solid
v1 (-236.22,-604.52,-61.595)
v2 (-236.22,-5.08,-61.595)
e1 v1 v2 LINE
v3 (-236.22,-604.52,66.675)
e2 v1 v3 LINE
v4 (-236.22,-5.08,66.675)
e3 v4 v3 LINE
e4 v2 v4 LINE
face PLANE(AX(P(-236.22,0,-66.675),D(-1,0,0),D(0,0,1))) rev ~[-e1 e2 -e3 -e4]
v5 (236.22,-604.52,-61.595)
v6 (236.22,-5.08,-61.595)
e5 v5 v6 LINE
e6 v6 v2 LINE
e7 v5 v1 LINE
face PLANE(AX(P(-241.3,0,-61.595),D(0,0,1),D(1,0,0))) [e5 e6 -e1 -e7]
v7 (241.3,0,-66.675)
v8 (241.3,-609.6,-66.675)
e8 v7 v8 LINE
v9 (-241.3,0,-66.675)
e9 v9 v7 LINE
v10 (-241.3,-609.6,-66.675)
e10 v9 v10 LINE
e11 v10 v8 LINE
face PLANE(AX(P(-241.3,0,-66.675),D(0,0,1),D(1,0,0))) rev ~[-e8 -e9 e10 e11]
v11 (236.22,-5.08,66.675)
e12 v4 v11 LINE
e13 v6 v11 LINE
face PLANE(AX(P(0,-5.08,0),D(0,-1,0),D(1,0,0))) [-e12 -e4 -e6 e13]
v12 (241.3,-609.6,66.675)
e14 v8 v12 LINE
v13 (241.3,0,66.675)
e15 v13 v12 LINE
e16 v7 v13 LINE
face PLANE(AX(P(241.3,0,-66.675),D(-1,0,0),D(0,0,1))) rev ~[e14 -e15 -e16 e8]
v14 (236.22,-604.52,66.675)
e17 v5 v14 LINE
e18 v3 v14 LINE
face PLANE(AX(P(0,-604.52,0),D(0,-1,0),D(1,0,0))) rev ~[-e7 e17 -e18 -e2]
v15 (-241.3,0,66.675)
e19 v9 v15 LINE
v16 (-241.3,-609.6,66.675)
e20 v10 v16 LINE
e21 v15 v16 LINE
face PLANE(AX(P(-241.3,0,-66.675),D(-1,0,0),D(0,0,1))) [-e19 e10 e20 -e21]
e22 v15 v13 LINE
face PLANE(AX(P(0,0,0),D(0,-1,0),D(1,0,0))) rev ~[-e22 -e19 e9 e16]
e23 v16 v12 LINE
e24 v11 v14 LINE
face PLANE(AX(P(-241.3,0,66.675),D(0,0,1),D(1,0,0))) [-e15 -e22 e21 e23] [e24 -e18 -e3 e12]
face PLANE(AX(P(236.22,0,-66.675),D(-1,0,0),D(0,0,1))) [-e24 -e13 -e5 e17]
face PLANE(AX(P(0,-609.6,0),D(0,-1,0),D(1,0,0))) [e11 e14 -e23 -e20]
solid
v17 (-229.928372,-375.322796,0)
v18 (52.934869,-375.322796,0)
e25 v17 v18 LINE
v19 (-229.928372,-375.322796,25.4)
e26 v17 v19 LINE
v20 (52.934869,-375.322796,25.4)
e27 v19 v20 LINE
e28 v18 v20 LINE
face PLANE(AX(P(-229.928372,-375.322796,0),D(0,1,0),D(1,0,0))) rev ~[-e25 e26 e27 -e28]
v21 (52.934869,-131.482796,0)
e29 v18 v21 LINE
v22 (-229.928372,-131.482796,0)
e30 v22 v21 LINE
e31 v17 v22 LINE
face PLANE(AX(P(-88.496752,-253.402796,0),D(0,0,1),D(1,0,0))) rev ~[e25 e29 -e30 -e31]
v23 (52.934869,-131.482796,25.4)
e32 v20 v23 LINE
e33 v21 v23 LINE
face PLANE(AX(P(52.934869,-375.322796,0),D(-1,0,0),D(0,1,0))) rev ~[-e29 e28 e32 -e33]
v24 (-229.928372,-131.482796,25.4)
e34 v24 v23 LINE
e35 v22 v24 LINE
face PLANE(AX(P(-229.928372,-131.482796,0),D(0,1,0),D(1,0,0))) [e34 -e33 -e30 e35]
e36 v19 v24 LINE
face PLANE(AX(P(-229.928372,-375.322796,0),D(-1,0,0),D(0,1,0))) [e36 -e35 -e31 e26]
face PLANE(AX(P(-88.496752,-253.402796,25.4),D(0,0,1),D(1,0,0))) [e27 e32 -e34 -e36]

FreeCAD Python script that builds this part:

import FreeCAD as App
import Part
import Sketcher
Q = App.Units.Quantity


def faces_at(feature, points):
    """Names of the faces that lie closest to the given points."""
    faces = feature.Shape.Faces
    near = lambda p: min(range(len(faces)), key=lambda i: faces[i].distToShape(Part.Vertex(*p))[0])
    return sorted({f"Face{near(p) + 1}" for p in points})

doc = App.newDocument("Part")
body = doc.addObject("PartDesign::Body", "Body")

sketch1 = doc.addObject("Sketcher::SketchObject", "Sketch")
body.addObject(sketch1)
sketch1.AttachmentSupport = (doc.XZ_Plane, [""])
sketch1.MapMode = "FlatFace"
sketch1.addGeometry(Part.LineSegment(App.Vector(-241, 67, 0), App.Vector(-241, -67, 0)), False)
sketch1.addGeometry(Part.LineSegment(App.Vector(-241, -67, 0), App.Vector(241, -67, 0)), False)
sketch1.addGeometry(Part.LineSegment(App.Vector(241, -67, 0), App.Vector(241, 67, 0)), False)
sketch1.addGeometry(Part.LineSegment(App.Vector(241, 67, 0), App.Vector(-241, 67, 0)), False)
sketch1.addConstraint(Sketcher.Constraint("Coincident", 0, 2, 1, 1))
sketch1.addConstraint(Sketcher.Constraint("Coincident", 1, 2, 2, 1))
sketch1.addConstraint(Sketcher.Constraint("Coincident", 2, 2, 3, 1))
sketch1.addConstraint(Sketcher.Constraint("Coincident", 3, 2, 0, 1))
sketch1.addConstraint(Sketcher.Constraint("Vertical", 0))
sketch1.addConstraint(Sketcher.Constraint("Horizontal", 1))
sketch1.addConstraint(Sketcher.Constraint("Vertical", 2))
sketch1.addConstraint(Sketcher.Constraint("Horizontal", 3))
sketch1.addConstraint(Sketcher.Constraint("Symmetric", 0, 2, 2, 2, -1, 1))
sketch1.addConstraint(Sketcher.Constraint("DistanceX", 1, 1, 1, 2, Q("19 in")))
sketch1.addConstraint(Sketcher.Constraint("DistanceY", 0, 2, 0, 1, Q("5.25 in")))
pad1 = doc.addObject("PartDesign::Pad", "Pad")
body.addObject(pad1)
pad1.Profile = sketch1
pad1.Length = Q("24 in")
doc.recompute()

thickness = doc.addObject("PartDesign::Thickness", "Thickness")
body.addObject(thickness)
thickness.Base = (pad1, faces_at(pad1, [(0, -304.8, 66.675)]))
thickness.Value = Q("0.2 in")
thickness.Reversed = True
thickness.Join = "Arc"
body2 = doc.addObject("PartDesign::Body", "Body001")

sketch2 = doc.addObject("Sketcher::SketchObject", "Sketch001")
body2.addObject(sketch2)
sketch2.AttachmentSupport = (doc.getObject("XY_Plane001"), [""])
sketch2.MapMode = "FlatFace"
sketch2.addGeometry(Part.LineSegment(App.Vector(-230, -131, 0), App.Vector(-230, -375, 0)), False)
sketch2.addGeometry(Part.LineSegment(App.Vector(-230, -375, 0), App.Vector(53, -375, 0)), False)
sketch2.addGeometry(Part.LineSegment(App.Vector(53, -375, 0), App.Vector(53, -131, 0)), False)
sketch2.addGeometry(Part.LineSegment(App.Vector(53, -131, 0), App.Vector(-230, -131, 0)), False)
sketch2.addConstraint(Sketcher.Constraint("Coincident", 0, 2, 1, 1))
sketch2.addConstraint(Sketcher.Constraint("Coincident", 1, 2, 2, 1))
sketch2.addConstraint(Sketcher.Constraint("Coincident", 2, 2, 3, 1))
sketch2.addConstraint(Sketcher.Constraint("Coincident", 3, 2, 0, 1))
sketch2.addConstraint(Sketcher.Constraint("Vertical", 0))
sketch2.addConstraint(Sketcher.Constraint("Horizontal", 1))
sketch2.addConstraint(Sketcher.Constraint("Vertical", 2))
sketch2.addConstraint(Sketcher.Constraint("Horizontal", 3))
sketch2.addConstraint(Sketcher.Constraint("DistanceY", 0, 2, 0, 1, Q("9.6 in")))
sketch2.addConstraint(Sketcher.Constraint("DistanceX", 1, 1, 1, 2, 282.863241))
sketch2.addConstraint(Sketcher.Constraint("DistanceX", -1, 1, 1, 2, 52.934869))
sketch2.addConstraint(Sketcher.Constraint("DistanceY", 0, 2, -1, 1, 375.322796))
pad2 = doc.addObject("PartDesign::Pad", "Pad001")
body2.addObject(pad2)
pad2.Profile = sketch2
pad2.Length = Q("1 in")

doc.recompute()
